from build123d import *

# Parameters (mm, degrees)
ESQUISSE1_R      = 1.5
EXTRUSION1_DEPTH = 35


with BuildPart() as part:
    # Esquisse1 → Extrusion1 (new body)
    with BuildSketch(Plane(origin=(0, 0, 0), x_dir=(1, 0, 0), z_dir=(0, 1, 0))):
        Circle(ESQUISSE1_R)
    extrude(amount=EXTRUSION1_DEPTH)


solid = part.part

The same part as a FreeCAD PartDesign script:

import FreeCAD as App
import Part
import Sketcher

doc = App.newDocument("Part")
params = doc.addObject("Spreadsheet::Sheet", "Params")
for row, (alias, value) in enumerate([
    ("sketch1_diameter", "3 mm"),
    ("pad1_length", "35 mm"),
], start=1):
    params.set(f"A{row}", alias)
    params.set(f"B{row}", "=" + value)
    params.setAlias(f"B{row}", alias)

body = doc.addObject("PartDesign::Body", "Body")

sketch1 = body.newObject("Sketcher::SketchObject", "Sketch")
sketch1.AttachmentSupport = (doc.getObject("XZ_Plane"), [""])
sketch1.MapMode = "FlatFace"
sketch1.addGeometry(Part.Circle(App.Vector(0, 0, 0), App.Vector(0, 0, 1), 1.5), False)
sketch1.addConstraint(Sketcher.Constraint("Coincident", 0, 3, -1, 1))
sketch1.addConstraint(Sketcher.Constraint("Diameter", 0, 3.0))
sketch1.setExpression("Constraints[1]", "Params.sketch1_diameter")
pad1 = body.newObject("PartDesign::Pad", "Pad")
pad1.Profile = sketch1
pad1.setExpression("Length", "Params.pad1_length")
pad1.Reversed = True

doc.recompute()
